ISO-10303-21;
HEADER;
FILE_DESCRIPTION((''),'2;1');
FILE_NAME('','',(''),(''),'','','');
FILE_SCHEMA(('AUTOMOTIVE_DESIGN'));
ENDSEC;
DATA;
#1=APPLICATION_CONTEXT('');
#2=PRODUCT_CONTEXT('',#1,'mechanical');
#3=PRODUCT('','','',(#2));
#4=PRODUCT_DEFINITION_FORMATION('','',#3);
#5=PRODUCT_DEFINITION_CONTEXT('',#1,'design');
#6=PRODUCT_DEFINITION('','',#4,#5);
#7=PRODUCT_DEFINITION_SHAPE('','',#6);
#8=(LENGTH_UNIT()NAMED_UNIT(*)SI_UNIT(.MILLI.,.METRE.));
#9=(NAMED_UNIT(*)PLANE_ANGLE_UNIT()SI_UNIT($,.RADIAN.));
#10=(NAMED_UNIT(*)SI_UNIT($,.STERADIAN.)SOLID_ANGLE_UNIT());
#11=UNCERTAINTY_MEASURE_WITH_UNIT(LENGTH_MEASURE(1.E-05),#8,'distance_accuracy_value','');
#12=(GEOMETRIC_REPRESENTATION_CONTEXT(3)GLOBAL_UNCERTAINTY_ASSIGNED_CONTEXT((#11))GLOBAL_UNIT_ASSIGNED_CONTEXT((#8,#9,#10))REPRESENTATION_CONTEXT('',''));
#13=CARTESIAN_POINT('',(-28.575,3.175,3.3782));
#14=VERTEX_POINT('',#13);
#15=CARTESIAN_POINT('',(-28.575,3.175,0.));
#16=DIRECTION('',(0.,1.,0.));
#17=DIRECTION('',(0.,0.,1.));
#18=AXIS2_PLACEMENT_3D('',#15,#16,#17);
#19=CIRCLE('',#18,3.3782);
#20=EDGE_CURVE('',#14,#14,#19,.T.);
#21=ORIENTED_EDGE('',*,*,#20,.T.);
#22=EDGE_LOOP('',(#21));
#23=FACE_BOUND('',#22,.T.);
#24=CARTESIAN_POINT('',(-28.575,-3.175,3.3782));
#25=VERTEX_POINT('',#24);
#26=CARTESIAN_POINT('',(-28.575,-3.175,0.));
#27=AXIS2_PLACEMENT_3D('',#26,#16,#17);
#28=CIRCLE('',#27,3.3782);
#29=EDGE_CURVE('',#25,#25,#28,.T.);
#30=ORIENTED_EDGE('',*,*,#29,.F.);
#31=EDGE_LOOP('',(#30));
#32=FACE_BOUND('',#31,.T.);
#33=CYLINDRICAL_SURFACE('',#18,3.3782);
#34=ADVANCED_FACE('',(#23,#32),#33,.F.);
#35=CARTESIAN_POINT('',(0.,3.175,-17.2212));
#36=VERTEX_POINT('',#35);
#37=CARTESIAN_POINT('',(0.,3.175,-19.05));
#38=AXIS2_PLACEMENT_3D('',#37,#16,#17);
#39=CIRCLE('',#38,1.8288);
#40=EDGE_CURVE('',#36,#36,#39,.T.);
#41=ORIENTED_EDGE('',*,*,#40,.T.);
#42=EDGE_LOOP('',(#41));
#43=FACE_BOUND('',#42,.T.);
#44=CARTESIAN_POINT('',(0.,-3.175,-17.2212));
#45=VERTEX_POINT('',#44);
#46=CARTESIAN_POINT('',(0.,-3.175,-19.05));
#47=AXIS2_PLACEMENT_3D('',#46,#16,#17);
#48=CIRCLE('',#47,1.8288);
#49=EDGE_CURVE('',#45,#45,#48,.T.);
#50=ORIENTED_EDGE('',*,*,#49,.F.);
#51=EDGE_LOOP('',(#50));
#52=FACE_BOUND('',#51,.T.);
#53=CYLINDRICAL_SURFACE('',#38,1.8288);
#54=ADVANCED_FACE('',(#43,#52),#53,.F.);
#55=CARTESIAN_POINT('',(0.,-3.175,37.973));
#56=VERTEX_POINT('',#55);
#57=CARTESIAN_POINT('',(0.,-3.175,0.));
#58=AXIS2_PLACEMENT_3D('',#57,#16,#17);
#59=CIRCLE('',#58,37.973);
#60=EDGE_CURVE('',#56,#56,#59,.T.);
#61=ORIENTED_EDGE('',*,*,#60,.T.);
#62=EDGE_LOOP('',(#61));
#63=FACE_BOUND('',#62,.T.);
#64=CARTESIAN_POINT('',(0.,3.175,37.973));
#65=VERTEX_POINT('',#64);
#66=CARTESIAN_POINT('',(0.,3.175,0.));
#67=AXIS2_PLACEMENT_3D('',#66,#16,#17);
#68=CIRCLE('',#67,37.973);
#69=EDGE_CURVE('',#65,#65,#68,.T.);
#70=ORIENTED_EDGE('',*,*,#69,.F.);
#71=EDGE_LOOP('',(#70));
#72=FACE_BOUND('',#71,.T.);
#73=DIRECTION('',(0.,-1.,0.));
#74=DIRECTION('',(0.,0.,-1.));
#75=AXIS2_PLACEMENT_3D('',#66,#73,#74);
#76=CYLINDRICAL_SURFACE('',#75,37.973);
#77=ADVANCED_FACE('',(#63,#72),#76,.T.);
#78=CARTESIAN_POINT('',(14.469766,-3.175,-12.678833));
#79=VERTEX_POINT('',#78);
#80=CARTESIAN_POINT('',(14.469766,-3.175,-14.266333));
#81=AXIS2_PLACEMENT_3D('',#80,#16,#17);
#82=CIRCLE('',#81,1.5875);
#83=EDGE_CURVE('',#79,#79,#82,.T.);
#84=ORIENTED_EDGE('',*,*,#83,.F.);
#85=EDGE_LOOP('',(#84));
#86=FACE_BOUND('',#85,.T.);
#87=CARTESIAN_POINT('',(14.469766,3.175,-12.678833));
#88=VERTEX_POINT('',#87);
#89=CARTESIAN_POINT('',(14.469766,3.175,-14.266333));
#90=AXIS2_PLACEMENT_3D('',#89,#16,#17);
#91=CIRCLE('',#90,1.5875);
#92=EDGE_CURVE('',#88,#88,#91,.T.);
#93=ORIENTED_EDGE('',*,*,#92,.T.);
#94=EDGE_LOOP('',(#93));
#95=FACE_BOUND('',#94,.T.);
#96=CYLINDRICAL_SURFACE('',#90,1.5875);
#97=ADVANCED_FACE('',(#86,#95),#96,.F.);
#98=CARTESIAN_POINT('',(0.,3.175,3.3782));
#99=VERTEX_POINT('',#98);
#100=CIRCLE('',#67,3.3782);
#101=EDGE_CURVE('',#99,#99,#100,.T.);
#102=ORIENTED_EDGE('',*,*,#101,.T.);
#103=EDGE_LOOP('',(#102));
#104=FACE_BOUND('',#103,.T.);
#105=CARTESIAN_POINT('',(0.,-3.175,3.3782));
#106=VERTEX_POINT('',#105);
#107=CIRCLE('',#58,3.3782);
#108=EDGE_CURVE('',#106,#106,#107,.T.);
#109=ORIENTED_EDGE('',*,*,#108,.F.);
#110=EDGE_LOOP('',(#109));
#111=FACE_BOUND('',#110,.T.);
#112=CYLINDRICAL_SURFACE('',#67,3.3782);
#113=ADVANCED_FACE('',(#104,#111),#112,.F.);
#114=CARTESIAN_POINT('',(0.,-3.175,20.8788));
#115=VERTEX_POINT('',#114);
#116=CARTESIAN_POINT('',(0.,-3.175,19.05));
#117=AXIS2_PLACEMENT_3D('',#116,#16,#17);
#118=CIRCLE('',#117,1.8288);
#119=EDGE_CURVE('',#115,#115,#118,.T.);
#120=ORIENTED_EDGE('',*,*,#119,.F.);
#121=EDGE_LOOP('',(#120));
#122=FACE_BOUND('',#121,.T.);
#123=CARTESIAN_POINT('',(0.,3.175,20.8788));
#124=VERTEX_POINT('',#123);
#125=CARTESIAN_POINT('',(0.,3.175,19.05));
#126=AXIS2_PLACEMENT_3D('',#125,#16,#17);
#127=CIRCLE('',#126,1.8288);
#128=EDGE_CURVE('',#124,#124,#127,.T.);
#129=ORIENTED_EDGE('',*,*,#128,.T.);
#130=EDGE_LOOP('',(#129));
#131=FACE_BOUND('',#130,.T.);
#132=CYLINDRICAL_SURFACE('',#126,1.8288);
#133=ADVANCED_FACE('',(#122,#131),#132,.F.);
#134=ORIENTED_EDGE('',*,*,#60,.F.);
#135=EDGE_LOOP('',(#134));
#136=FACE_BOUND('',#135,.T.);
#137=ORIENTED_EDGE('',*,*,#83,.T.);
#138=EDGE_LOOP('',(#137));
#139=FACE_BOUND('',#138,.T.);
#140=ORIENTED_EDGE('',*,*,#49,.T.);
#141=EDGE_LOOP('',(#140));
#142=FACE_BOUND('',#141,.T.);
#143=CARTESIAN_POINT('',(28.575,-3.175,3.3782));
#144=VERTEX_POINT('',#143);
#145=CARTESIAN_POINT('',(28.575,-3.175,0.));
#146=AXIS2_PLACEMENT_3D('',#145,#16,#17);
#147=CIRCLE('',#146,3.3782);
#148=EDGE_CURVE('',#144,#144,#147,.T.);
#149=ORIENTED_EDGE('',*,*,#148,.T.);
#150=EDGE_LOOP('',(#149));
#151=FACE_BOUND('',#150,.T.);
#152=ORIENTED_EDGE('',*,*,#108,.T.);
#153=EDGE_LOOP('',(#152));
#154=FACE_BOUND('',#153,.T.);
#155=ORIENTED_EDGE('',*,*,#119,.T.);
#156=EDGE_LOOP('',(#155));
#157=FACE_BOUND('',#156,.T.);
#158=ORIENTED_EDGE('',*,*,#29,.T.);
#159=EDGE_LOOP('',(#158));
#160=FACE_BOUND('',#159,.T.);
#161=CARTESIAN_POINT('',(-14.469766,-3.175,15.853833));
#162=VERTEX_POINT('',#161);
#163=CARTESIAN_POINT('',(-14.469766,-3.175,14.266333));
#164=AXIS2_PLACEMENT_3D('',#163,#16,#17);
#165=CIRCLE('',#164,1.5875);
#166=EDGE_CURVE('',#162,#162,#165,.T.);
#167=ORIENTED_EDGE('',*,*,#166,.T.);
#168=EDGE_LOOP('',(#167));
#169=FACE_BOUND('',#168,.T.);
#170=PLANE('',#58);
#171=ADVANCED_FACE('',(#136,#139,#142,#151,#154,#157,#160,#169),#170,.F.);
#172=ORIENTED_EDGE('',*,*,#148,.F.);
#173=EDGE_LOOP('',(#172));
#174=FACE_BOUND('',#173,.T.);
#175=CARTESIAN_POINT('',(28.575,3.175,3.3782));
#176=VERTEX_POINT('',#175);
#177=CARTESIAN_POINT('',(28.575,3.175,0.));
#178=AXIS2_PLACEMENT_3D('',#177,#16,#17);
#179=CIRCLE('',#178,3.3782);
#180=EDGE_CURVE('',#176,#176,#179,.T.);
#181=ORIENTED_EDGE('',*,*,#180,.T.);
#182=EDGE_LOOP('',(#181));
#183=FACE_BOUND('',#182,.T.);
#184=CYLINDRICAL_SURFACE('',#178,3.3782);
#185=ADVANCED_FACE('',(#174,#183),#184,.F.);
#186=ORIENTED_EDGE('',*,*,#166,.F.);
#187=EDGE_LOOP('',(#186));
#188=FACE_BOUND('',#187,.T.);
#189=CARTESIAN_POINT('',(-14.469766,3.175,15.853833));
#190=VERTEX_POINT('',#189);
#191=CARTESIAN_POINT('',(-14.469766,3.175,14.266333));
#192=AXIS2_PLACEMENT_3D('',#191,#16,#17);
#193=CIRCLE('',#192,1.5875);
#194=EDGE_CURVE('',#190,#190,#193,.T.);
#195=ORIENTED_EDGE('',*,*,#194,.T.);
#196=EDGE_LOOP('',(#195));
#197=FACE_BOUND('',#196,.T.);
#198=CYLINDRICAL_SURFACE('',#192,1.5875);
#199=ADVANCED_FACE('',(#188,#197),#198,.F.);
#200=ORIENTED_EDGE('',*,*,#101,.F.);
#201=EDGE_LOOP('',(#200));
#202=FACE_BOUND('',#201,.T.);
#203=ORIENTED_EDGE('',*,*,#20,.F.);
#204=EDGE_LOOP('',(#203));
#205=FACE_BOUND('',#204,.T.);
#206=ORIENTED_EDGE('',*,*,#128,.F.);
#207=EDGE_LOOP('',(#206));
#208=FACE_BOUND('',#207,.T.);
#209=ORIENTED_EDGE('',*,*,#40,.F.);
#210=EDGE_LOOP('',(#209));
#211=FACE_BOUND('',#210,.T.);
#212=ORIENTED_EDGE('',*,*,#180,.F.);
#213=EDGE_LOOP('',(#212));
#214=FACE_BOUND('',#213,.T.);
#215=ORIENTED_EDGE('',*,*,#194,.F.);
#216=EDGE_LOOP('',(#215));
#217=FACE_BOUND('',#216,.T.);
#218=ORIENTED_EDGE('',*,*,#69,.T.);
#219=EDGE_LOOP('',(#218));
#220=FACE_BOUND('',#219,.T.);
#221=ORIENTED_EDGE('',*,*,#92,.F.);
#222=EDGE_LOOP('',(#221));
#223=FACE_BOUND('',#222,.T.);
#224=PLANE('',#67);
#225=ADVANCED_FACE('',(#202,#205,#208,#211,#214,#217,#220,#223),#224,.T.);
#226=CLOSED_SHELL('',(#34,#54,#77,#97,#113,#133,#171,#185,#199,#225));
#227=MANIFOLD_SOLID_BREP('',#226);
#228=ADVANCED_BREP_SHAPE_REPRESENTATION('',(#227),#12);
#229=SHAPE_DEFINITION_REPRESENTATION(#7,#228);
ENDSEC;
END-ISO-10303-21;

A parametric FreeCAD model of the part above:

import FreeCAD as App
import Part
import Sketcher
Q = App.Units.Quantity

doc = App.newDocument("Part")
body = doc.addObject("PartDesign::Body", "Body")

# Sketch on XZ plane
sketch1 = body.newObject("Sketcher::SketchObject", "Sketch")
sketch1.AttachmentSupport = (doc.getObject("XZ_Plane"), [""])
sketch1.MapMode = "FlatFace"
sketch1.addGeometry(Part.Circle(App.Vector(0, 0, 0), App.Vector(0, 0, 1), 37.973), False)
sketch1.addConstraint([
    Sketcher.Constraint("Coincident", 0, 3, -1, 1),
    Sketcher.Constraint("Diameter", 0, Q("2.99 in")),
])
pad1 = body.newObject("PartDesign::Pad", "Pad")
pad1.Profile = sketch1
pad1.Length = Q("0.25 in")
pad1.Midplane = True

# Sketch on XZ plane
sketch2 = body.newObject("Sketcher::SketchObject", "Sketch001")
sketch2.AttachmentSupport = (doc.getObject("XZ_Plane"), [""])
sketch2.MapMode = "FlatFace"
sketch2.AttachmentOffset = App.Placement(App.Vector(0, 0, -0.125 * 25.4), App.Rotation())
sketch2.addGeometry([
    Part.Circle(App.Vector(-28.575, 0, 0), App.Vector(0, 0, 1), 3.3782),
    Part.Circle(App.Vector(28.575, 0, 0), App.Vector(0, 0, 1), 3.3782),
], False)
sketch2.addConstraint([
    Sketcher.Constraint("Equal", 0, 1),
    Sketcher.Constraint("Symmetric", 0, 3, 1, 3, -1, 1),
    Sketcher.Constraint("PointOnObject", 0, 3, -1),
    Sketcher.Constraint("Diameter", 0, Q("0.266 in")),
    Sketcher.Constraint("DistanceX", 0, 3, 1, 3, Q("2.25 in")),
])
doc.recompute()
hole = body.newObject("PartDesign::Hole", "Hole")
hole.Profile = sketch2
hole.ThreadType = "None"
hole.Diameter = Q("0.266 in")
hole.DepthType = "ThroughAll"
hole.Reversed = True

# Sketch on XZ plane
sketch3 = body.newObject("Sketcher::SketchObject", "Sketch002")
sketch3.AttachmentSupport = (doc.getObject("XZ_Plane"), [""])
sketch3.MapMode = "FlatFace"
sketch3.AttachmentOffset = App.Placement(App.Vector(0, 0, -0.125 * 25.4), App.Rotation())
sketch3.addGeometry([
    Part.Circle(App.Vector(0, -19.05, 0), App.Vector(0, 0, 1), 1.8288),
    Part.Circle(App.Vector(0, 19.05, 0), App.Vector(0, 0, 1), 1.8288),
], False)
sketch3.addConstraint([
    Sketcher.Constraint("Equal", 0, 1),
    Sketcher.Constraint("Symmetric", 0, 3, 1, 3, -1, 1),
    Sketcher.Constraint("PointOnObject", 0, 3, -2),
    Sketcher.Constraint("Diameter", 0, Q("0.144 in")),
    Sketcher.Constraint("DistanceY", 0, 3, 1, 3, Q("1.5 in")),
])
doc.recompute()
hole2 = body.newObject("PartDesign::Hole", "Hole001")
hole2.Profile = sketch3
hole2.ThreadType = "None"
hole2.Diameter = Q("0.144 in")
hole2.DepthType = "ThroughAll"
hole2.Reversed = True

# Sketch on XZ plane
sketch4 = body.newObject("Sketcher::SketchObject", "Sketch003")
sketch4.AttachmentSupport = (doc.getObject("XZ_Plane"), [""])
sketch4.MapMode = "FlatFace"
sketch4.AttachmentOffset = App.Placement(App.Vector(0, 0, -0.125 * 25.4), App.Rotation())
sketch4.addGeometry([
    Part.Circle(App.Vector(14.469766, -14.266333, 0), App.Vector(0, 0, 1), 1.5875),
    Part.Circle(App.Vector(-14.469766, 14.266333, 0), App.Vector(0, 0, 1), 1.5875),
], False)
sketch4.addConstraint([
    Sketcher.Constraint("Equal", 0, 1),
    Sketcher.Constraint("Symmetric", 0, 3, 1, 3, -1, 1),
    Sketcher.Constraint("Diameter", 0, Q("0.125 in")),
    Sketcher.Constraint("DistanceX", -1, 1, 0, 3, Q("14.469766 mm")),
    Sketcher.Constraint("DistanceY", 0, 3, -1, 1, Q("14.266333 mm")),
])
doc.recompute()
hole3 = body.newObject("PartDesign::Hole", "Hole002")
hole3.Profile = sketch4
hole3.ThreadType = "None"
hole3.Diameter = Q("0.125 in")
hole3.DepthType = "ThroughAll"
hole3.Reversed = True

# Sketch on XZ plane
sketch5 = body.newObject("Sketcher::SketchObject", "Sketch004")
sketch5.AttachmentSupport = (doc.getObject("XZ_Plane"), [""])
sketch5.MapMode = "FlatFace"
sketch5.AttachmentOffset = App.Placement(App.Vector(0, 0, -0.125 * 25.4), App.Rotation())
sketch5.addGeometry(Part.Circle(App.Vector(0, 0, 0), App.Vector(0, 0, 1), 3.3782), False)
sketch5.addConstraint([
    Sketcher.Constraint("Coincident", 0, 3, -1, 1),
    Sketcher.Constraint("Diameter", 0, Q("0.266 in")),
])
doc.recompute()
hole4 = body.newObject("PartDesign::Hole", "Hole003")
hole4.Profile = sketch5
hole4.ThreadType = "None"
hole4.Diameter = Q("0.266 in")
hole4.DepthType = "ThroughAll"
hole4.Reversed = True

doc.recompute()
